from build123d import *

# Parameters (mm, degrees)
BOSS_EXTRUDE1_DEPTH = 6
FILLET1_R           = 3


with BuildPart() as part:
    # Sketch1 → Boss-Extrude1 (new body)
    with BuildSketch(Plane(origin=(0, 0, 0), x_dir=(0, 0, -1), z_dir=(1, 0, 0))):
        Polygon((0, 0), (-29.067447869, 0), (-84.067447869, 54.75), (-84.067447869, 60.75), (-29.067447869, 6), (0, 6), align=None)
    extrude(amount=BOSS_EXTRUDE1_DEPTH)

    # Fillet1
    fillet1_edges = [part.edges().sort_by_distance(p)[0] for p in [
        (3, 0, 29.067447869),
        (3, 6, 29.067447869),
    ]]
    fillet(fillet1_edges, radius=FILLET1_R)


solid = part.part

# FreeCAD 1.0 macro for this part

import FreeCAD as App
import Part
import Sketcher
from FreeCAD import Vector
Q = App.Units.Quantity


def edges_at(feature, points):
    """Names of the edges that pass closest to the given points."""
    edges = feature.Shape.Edges
    near = lambda p: min(range(len(edges)), key=lambda i: edges[i].distToShape(Part.Vertex(*p))[0])
    return sorted({f"Edge{near(p) + 1}" for p in points})

doc = App.newDocument("Part")
body = doc.addObject("PartDesign::Body", "Body")

# Sketch on YZ plane
sketch1 = body.newObject("Sketcher::SketchObject", "Sketch")
sketch1.AttachmentSupport = (doc.getObject("YZ_Plane"), [""])
sketch1.MapMode = "FlatFace"
sketch1.addGeometry([
    Part.LineSegment(Vector(0, 29, 0), Vector(0, 0, 0)),  # 0
    Part.LineSegment(Vector(0, 0, 0), Vector(6, 0, 0)),  # 1
    Part.LineSegment(Vector(6, 0, 0), Vector(6, 29, 0)),  # 2
    Part.LineSegment(Vector(6, 29, 0), Vector(61, 84, 0)),  # 3
    Part.LineSegment(Vector(61, 84, 0), Vector(55, 84, 0)),  # 4
    Part.LineSegment(Vector(55, 84, 0), Vector(0, 29, 0)),  # 5
], False)
sketch1.addConstraint([
    Sketcher.Constraint("Coincident", 0, 2, 1, 1),
    Sketcher.Constraint("Coincident", 1, 2, 2, 1),
    Sketcher.Constraint("Coincident", 2, 2, 3, 1),
    Sketcher.Constraint("Coincident", 3, 2, 4, 1),
    Sketcher.Constraint("Coincident", 4, 2, 5, 1),
    Sketcher.Constraint("Coincident", 5, 2, 0, 1),
    Sketcher.Constraint("Vertical", 0),
    Sketcher.Constraint("Horizontal", 1),
    Sketcher.Constraint("Vertical", 2),
    Sketcher.Constraint("Horizontal", 4),
    Sketcher.Constraint("Coincident", 0, 2, -1, 1),
    Sketcher.Constraint("Parallel", 3, 5),
    Sketcher.Constraint("Horizontal", 2, 2, 5, 2),
    Sketcher.Constraint("DistanceX", 1, 1, 1, 2, Q("6 mm")),
    Sketcher.Constraint("DistanceY", 2, 2, 3, 2, Q("55 mm")),
    Sketcher.Constraint("DistanceX", -1, 1, 3, 2, Q("60.75 mm")),
    Sketcher.Constraint("DistanceY", 0, 2, 0, 1, Q("29.067448 mm")),
])
pad1 = body.newObject("PartDesign::Pad", "Pad")
pad1.Profile = sketch1
pad1.Length = 6
doc.recompute()

fillet = body.newObject("PartDesign::Fillet", "Fillet")
fillet.Base = (pad1, edges_at(pad1, [(3, 0, 29.067), (3, 6, 29.067)]))
fillet.Radius = 3

doc.recompute()
